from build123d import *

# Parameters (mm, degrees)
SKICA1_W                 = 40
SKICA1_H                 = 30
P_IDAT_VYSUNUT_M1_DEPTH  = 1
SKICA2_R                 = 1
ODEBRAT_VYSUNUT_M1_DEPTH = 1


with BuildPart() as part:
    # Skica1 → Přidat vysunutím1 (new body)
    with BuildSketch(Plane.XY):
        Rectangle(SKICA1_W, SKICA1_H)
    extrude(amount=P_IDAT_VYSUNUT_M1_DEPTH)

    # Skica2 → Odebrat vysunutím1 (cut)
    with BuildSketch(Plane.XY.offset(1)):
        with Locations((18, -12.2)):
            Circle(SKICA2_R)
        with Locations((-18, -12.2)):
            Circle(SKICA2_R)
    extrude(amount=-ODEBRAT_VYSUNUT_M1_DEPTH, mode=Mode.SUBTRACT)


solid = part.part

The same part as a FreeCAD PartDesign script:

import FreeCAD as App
import Part
import Sketcher

V = App.Vector

doc = App.newDocument("Part")
params = doc.addObject("Spreadsheet::Sheet", "Params")
for row, (alias, value) in enumerate([
    ("sketch1_width", "40 mm"),
    ("sketch1_height", "30 mm"),
    ("pad1_length", "1 mm"),
    ("sketch2_diameter", "2 mm"),
    ("pocket1_length", "1 mm"),
], start=1):
    params.set(f"A{row}", alias)
    params.set(f"B{row}", "=" + value)
    params.setAlias(f"B{row}", alias)

body = doc.addObject("PartDesign::Body", "Body")

# Sketch on XY plane
sketch1 = doc.addObject("Sketcher::SketchObject", "Sketch")
body.addObject(sketch1)
sketch1.AttachmentSupport = (doc.XY_Plane, [""])
sketch1.MapMode = "FlatFace"
sketch1.addGeometry([
    Part.LineSegment(V(-20, 15, 0), V(-20, -15, 0)),
    Part.LineSegment(V(-20, -15, 0), V(20, -15, 0)),
    Part.LineSegment(V(20, -15, 0), V(20, 15, 0)),
    Part.LineSegment(V(20, 15, 0), V(-20, 15, 0)),
], False)
sketch1.addConstraint([
    Sketcher.Constraint("Coincident", 0, 2, 1, 1),
    Sketcher.Constraint("Coincident", 1, 2, 2, 1),
    Sketcher.Constraint("Coincident", 2, 2, 3, 1),
    Sketcher.Constraint("Coincident", 3, 2, 0, 1),
    Sketcher.Constraint("Vertical", 0),
    Sketcher.Constraint("Horizontal", 1),
    Sketcher.Constraint("Vertical", 2),
    Sketcher.Constraint("Horizontal", 3),
    Sketcher.Constraint("Symmetric", 0, 2, 2, 2, -1, 1),
    Sketcher.Constraint("DistanceX", 1, 1, 1, 2, 40.0),
    Sketcher.Constraint("DistanceY", 0, 2, 0, 1, 30.0),
])
sketch1.setExpression("Constraints[9]", "Params.sketch1_width")
sketch1.setExpression("Constraints[10]", "Params.sketch1_height")
pad1 = doc.addObject("PartDesign::Pad", "Pad")
body.addObject(pad1)
pad1.Profile = sketch1
pad1.setExpression("Length", "Params.pad1_length")

# Sketch on XY plane
sketch2 = doc.addObject("Sketcher::SketchObject", "Sketch001")
body.addObject(sketch2)
sketch2.AttachmentSupport = (doc.XY_Plane, [""])
sketch2.MapMode = "FlatFace"
sketch2.AttachmentOffset = App.Placement(V(0, 0, 1), App.Rotation())
sketch2.addGeometry([
    Part.Circle(V(18, -12.2, 0), V(0, 0, 1), 1),
    Part.Circle(V(-18, -12.2, 0), V(0, 0, 1), 1),
], False)
sketch2.addConstraint([
    Sketcher.Constraint("Equal", 0, 1),
    Sketcher.Constraint("Symmetric", 0, 3, 1, 3, -2),
    Sketcher.Constraint("Diameter", 0, 2.0),
    Sketcher.Constraint("DistanceX", -1, 1, 0, 3, 18.0),
    Sketcher.Constraint("DistanceY", 0, 3, -1, 1, 12.2),
])
sketch2.setExpression("Constraints[2]", "Params.sketch2_diameter")
pocket1 = doc.addObject("PartDesign::Pocket", "Pocket")
body.addObject(pocket1)
pocket1.Profile = sketch2
pocket1.setExpression("Length", "Params.pocket1_length")

doc.recompute()
